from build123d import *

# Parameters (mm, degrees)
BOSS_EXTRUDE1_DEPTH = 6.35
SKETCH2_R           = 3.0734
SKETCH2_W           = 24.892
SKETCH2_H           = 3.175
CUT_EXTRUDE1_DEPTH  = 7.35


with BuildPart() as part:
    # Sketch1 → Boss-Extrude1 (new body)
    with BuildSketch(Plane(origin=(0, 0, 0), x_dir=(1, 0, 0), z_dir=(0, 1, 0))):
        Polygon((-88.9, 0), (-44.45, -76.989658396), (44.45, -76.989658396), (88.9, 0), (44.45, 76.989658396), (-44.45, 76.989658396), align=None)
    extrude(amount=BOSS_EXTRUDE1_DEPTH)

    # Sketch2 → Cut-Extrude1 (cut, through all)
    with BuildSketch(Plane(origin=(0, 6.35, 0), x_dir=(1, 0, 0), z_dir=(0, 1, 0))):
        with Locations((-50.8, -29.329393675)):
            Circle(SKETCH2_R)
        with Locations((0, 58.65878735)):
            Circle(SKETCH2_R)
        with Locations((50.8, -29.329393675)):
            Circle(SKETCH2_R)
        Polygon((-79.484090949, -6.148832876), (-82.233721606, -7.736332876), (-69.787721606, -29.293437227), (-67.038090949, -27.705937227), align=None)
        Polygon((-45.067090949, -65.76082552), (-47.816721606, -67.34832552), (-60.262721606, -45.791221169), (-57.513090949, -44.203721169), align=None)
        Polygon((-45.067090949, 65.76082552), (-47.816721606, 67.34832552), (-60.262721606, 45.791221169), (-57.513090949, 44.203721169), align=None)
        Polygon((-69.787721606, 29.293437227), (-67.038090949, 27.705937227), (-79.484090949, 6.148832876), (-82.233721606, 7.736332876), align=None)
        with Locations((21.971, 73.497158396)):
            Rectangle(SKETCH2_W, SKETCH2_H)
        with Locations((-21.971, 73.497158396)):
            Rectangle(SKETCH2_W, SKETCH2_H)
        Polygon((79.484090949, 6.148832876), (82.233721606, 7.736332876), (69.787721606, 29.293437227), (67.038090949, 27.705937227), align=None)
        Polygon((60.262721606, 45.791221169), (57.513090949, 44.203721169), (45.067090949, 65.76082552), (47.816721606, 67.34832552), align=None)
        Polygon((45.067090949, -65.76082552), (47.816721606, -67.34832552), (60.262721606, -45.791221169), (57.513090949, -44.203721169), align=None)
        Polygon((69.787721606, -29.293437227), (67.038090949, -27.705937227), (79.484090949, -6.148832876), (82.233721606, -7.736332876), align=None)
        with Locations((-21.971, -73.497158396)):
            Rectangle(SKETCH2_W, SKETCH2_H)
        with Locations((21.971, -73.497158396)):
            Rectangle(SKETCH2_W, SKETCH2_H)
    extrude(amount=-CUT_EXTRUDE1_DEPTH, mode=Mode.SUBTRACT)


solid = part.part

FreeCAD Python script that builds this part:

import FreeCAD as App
import Part
import Sketcher

V = App.Vector
Q = App.Units.Quantity

doc = App.newDocument("Part")
body = doc.addObject("PartDesign::Body", "Body")

# Sketch on XZ plane
sketch1 = body.newObject("Sketcher::SketchObject", "Sketch")
sketch1.AttachmentSupport = (doc.getObject("XZ_Plane"), [""])
sketch1.MapMode = "FlatFace"
sketch1.addGeometry(Part.LineSegment(V(-89, 0, 0), V(-44, 77, 0)), False)
sketch1.addGeometry(Part.LineSegment(V(-44, 77, 0), V(44, 77, 0)), False)
sketch1.addGeometry(Part.LineSegment(V(44, 77, 0), V(89, 0, 0)), False)
sketch1.addGeometry(Part.LineSegment(V(89, 0, 0), V(44, -77, 0)), False)
sketch1.addGeometry(Part.LineSegment(V(44, -77, 0), V(-44, -77, 0)), False)
sketch1.addGeometry(Part.LineSegment(V(-44, -77, 0), V(-89, 0, 0)), False)
sketch1.addConstraint(Sketcher.Constraint("Coincident", 0, 2, 1, 1))
sketch1.addConstraint(Sketcher.Constraint("Coincident", 1, 2, 2, 1))
sketch1.addConstraint(Sketcher.Constraint("Coincident", 2, 2, 3, 1))
sketch1.addConstraint(Sketcher.Constraint("Coincident", 3, 2, 4, 1))
sketch1.addConstraint(Sketcher.Constraint("Coincident", 4, 2, 5, 1))
sketch1.addConstraint(Sketcher.Constraint("Coincident", 5, 2, 0, 1))
sketch1.addConstraint(Sketcher.Constraint("Horizontal", 1))
sketch1.addConstraint(Sketcher.Constraint("Horizontal", 4))
sketch1.addConstraint(Sketcher.Constraint("Symmetric", 0, 2, 3, 2, -1, 1))
sketch1.addConstraint(Sketcher.Constraint("Symmetric", 2, 2, 5, 2, -1, 1))
sketch1.addConstraint(Sketcher.Constraint("PointOnObject", 2, 2, -1))
sketch1.addConstraint(Sketcher.Constraint("Parallel", 2, 5))
sketch1.addConstraint(Sketcher.Constraint("Vertical", 1, 2, 3, 2))
sketch1.addConstraint(Sketcher.Constraint("DistanceX", 1, 1, 1, 2, Q("3.5 in")))
sketch1.addConstraint(Sketcher.Constraint("Angle", 0, Q("60 deg")))
sketch1.addConstraint(Sketcher.Constraint("DistanceX", 5, 2, 2, 2, Q("7 in")))
pad1 = body.newObject("PartDesign::Pad", "Pad")
pad1.Profile = sketch1
pad1.Length = Q("0.25 in")
pad1.Reversed = True

# Sketch on XZ plane
sketch2 = body.newObject("Sketcher::SketchObject", "Sketch001")
sketch2.AttachmentSupport = (doc.getObject("XZ_Plane"), [""])
sketch2.MapMode = "FlatFace"
sketch2.AttachmentOffset = App.Placement(V(0, 0, -0.25 * 25.4), App.Rotation())
sketch2.addGeometry(Part.Circle(V(-50.8, 29.3, 0), V(0, 0, 1), 3.1), False)
sketch2.addGeometry(Part.Circle(V(0, -58.7, 0), V(0, 0, 1), 3.1), False)
sketch2.addGeometry(Part.Circle(V(50.8, 29.3, 0), V(0, 0, 1), 3.1), False)
sketch2.addGeometry(Part.LineSegment(V(-79.5, 6.1, 0), V(-82.2, 7.7, 0)), False)
sketch2.addGeometry(Part.LineSegment(V(-82.2, 7.7, 0), V(-69.8, 29.3, 0)), False)
sketch2.addGeometry(Part.LineSegment(V(-69.8, 29.3, 0), V(-67, 27.7, 0)), False)
sketch2.addGeometry(Part.LineSegment(V(-67, 27.7, 0), V(-79.5, 6.1, 0)), False)
sketch2.addGeometry(Part.LineSegment(V(-47.8, 67.3, 0), V(-45.1, 65.8, 0)), False)
sketch2.addGeometry(Part.LineSegment(V(-45.1, 65.8, 0), V(-57.5, 44.2, 0)), False)
sketch2.addGeometry(Part.LineSegment(V(-57.5, 44.2, 0), V(-60.3, 45.8, 0)), False)
sketch2.addGeometry(Part.LineSegment(V(-60.3, 45.8, 0), V(-47.8, 67.3, 0)), False)
sketch2.addGeometry(Part.LineSegment(V(-45.1, -65.8, 0), V(-47.8, -67.3, 0)), False)
sketch2.addGeometry(Part.LineSegment(V(-47.8, -67.3, 0), V(-60.3, -45.8, 0)), False)
sketch2.addGeometry(Part.LineSegment(V(-60.3, -45.8, 0), V(-57.5, -44.2, 0)), False)
sketch2.addGeometry(Part.LineSegment(V(-57.5, -44.2, 0), V(-45.1, -65.8, 0)), False)
sketch2.addGeometry(Part.LineSegment(V(-67, -27.7, 0), V(-69.8, -29.3, 0)), False)
sketch2.addGeometry(Part.LineSegment(V(-69.8, -29.3, 0), V(-82.2, -7.7, 0)), False)
sketch2.addGeometry(Part.LineSegment(V(-82.2, -7.7, 0), V(-79.5, -6.1, 0)), False)
sketch2.addGeometry(Part.LineSegment(V(-79.5, -6.1, 0), V(-67, -27.7, 0)), False)
sketch2.addGeometry(Part.LineSegment(V(9.5, -75.1, 0), V(9.5, -71.9, 0)), False)
sketch2.addGeometry(Part.LineSegment(V(9.5, -71.9, 0), V(34.4, -71.9, 0)), False)
sketch2.addGeometry(Part.LineSegment(V(34.4, -71.9, 0), V(34.4, -75.1, 0)), False)
sketch2.addGeometry(Part.LineSegment(V(34.4, -75.1, 0), V(9.5, -75.1, 0)), False)
sketch2.addGeometry(Part.LineSegment(V(-34.4, -75.1, 0), V(-34.4, -71.9, 0)), False)
sketch2.addGeometry(Part.LineSegment(V(-34.4, -71.9, 0), V(-9.5, -71.9, 0)), False)
sketch2.addGeometry(Part.LineSegment(V(-9.5, -71.9, 0), V(-9.5, -75.1, 0)), False)
sketch2.addGeometry(Part.LineSegment(V(-9.5, -75.1, 0), V(-34.4, -75.1, 0)), False)
sketch2.addGeometry(Part.LineSegment(V(79.5, -6.1, 0), V(82.2, -7.7, 0)), False)
sketch2.addGeometry(Part.LineSegment(V(82.2, -7.7, 0), V(69.8, -29.3, 0)), False)
sketch2.addGeometry(Part.LineSegment(V(69.8, -29.3, 0), V(67, -27.7, 0)), False)
sketch2.addGeometry(Part.LineSegment(V(67, -27.7, 0), V(79.5, -6.1, 0)), False)
sketch2.addGeometry(Part.LineSegment(V(57.5, -44.2, 0), V(60.3, -45.8, 0)), False)
sketch2.addGeometry(Part.LineSegment(V(60.3, -45.8, 0), V(47.8, -67.3, 0)), False)
sketch2.addGeometry(Part.LineSegment(V(47.8, -67.3, 0), V(45.1, -65.8, 0)), False)
sketch2.addGeometry(Part.LineSegment(V(45.1, -65.8, 0), V(57.5, -44.2, 0)), False)
sketch2.addGeometry(Part.LineSegment(V(45.1, 65.8, 0), V(47.8, 67.3, 0)), False)
sketch2.addGeometry(Part.LineSegment(V(47.8, 67.3, 0), V(60.3, 45.8, 0)), False)
sketch2.addGeometry(Part.LineSegment(V(60.3, 45.8, 0), V(57.5, 44.2, 0)), False)
sketch2.addGeometry(Part.LineSegment(V(57.5, 44.2, 0), V(45.1, 65.8, 0)), False)
sketch2.addGeometry(Part.LineSegment(V(67, 27.7, 0), V(69.8, 29.3, 0)), False)
sketch2.addGeometry(Part.LineSegment(V(69.8, 29.3, 0), V(82.2, 7.7, 0)), False)
sketch2.addGeometry(Part.LineSegment(V(82.2, 7.7, 0), V(79.5, 6.1, 0)), False)
sketch2.addGeometry(Part.LineSegment(V(79.5, 6.1, 0), V(67, 27.7, 0)), False)
sketch2.addGeometry(Part.LineSegment(V(-34.4, 71.9, 0), V(-34.4, 75.1, 0)), False)
sketch2.addGeometry(Part.LineSegment(V(-34.4, 75.1, 0), V(-9.5, 75.1, 0)), False)
sketch2.addGeometry(Part.LineSegment(V(-9.5, 75.1, 0), V(-9.5, 71.9, 0)), False)
sketch2.addGeometry(Part.LineSegment(V(-9.5, 71.9, 0), V(-34.4, 71.9, 0)), False)
sketch2.addGeometry(Part.LineSegment(V(9.5, 71.9, 0), V(9.5, 75.1, 0)), False)
sketch2.addGeometry(Part.LineSegment(V(9.5, 75.1, 0), V(34.4, 75.1, 0)), False)
sketch2.addGeometry(Part.LineSegment(V(34.4, 75.1, 0), V(34.4, 71.9, 0)), False)
sketch2.addGeometry(Part.LineSegment(V(34.4, 71.9, 0), V(9.5, 71.9, 0)), False)
sketch2.addConstraint(Sketcher.Constraint("Coincident", 3, 2, 4, 1))
sketch2.addConstraint(Sketcher.Constraint("Coincident", 4, 2, 5, 1))
sketch2.addConstraint(Sketcher.Constraint("Coincident", 5, 2, 6, 1))
sketch2.addConstraint(Sketcher.Constraint("Coincident", 6, 2, 3, 1))
sketch2.addConstraint(Sketcher.Constraint("Coincident", 7, 2, 8, 1))
sketch2.addConstraint(Sketcher.Constraint("Coincident", 8, 2, 9, 1))
sketch2.addConstraint(Sketcher.Constraint("Coincident", 9, 2, 10, 1))
sketch2.addConstraint(Sketcher.Constraint("Coincident", 10, 2, 7, 1))
sketch2.addConstraint(Sketcher.Constraint("Coincident", 11, 2, 12, 1))
sketch2.addConstraint(Sketcher.Constraint("Coincident", 12, 2, 13, 1))
sketch2.addConstraint(Sketcher.Constraint("Coincident", 13, 2, 14, 1))
sketch2.addConstraint(Sketcher.Constraint("Coincident", 14, 2, 11, 1))
sketch2.addConstraint(Sketcher.Constraint("Coincident", 15, 2, 16, 1))
sketch2.addConstraint(Sketcher.Constraint("Coincident", 16, 2, 17, 1))
sketch2.addConstraint(Sketcher.Constraint("Coincident", 17, 2, 18, 1))
sketch2.addConstraint(Sketcher.Constraint("Coincident", 18, 2, 15, 1))
sketch2.addConstraint(Sketcher.Constraint("Coincident", 19, 2, 20, 1))
sketch2.addConstraint(Sketcher.Constraint("Coincident", 20, 2, 21, 1))
sketch2.addConstraint(Sketcher.Constraint("Coincident", 21, 2, 22, 1))
sketch2.addConstraint(Sketcher.Constraint("Coincident", 22, 2, 19, 1))
sketch2.addConstraint(Sketcher.Constraint("Coincident", 23, 2, 24, 1))
sketch2.addConstraint(Sketcher.Constraint("Coincident", 24, 2, 25, 1))
sketch2.addConstraint(Sketcher.Constraint("Coincident", 25, 2, 26, 1))
sketch2.addConstraint(Sketcher.Constraint("Coincident", 26, 2, 23, 1))
sketch2.addConstraint(Sketcher.Constraint("Coincident", 27, 2, 28, 1))
sketch2.addConstraint(Sketcher.Constraint("Coincident", 28, 2, 29, 1))
sketch2.addConstraint(Sketcher.Constraint("Coincident", 29, 2, 30, 1))
sketch2.addConstraint(Sketcher.Constraint("Coincident", 30, 2, 27, 1))
sketch2.addConstraint(Sketcher.Constraint("Coincident", 31, 2, 32, 1))
sketch2.addConstraint(Sketcher.Constraint("Coincident", 32, 2, 33, 1))
sketch2.addConstraint(Sketcher.Constraint("Coincident", 33, 2, 34, 1))
sketch2.addConstraint(Sketcher.Constraint("Coincident", 34, 2, 31, 1))
sketch2.addConstraint(Sketcher.Constraint("Coincident", 35, 2, 36, 1))
sketch2.addConstraint(Sketcher.Constraint("Coincident", 36, 2, 37, 1))
sketch2.addConstraint(Sketcher.Constraint("Coincident", 37, 2, 38, 1))
sketch2.addConstraint(Sketcher.Constraint("Coincident", 38, 2, 35, 1))
sketch2.addConstraint(Sketcher.Constraint("Coincident", 39, 2, 40, 1))
sketch2.addConstraint(Sketcher.Constraint("Coincident", 40, 2, 41, 1))
sketch2.addConstraint(Sketcher.Constraint("Coincident", 41, 2, 42, 1))
sketch2.addConstraint(Sketcher.Constraint("Coincident", 42, 2, 39, 1))
sketch2.addConstraint(Sketcher.Constraint("Coincident", 43, 2, 44, 1))
sketch2.addConstraint(Sketcher.Constraint("Coincident", 44, 2, 45, 1))
sketch2.addConstraint(Sketcher.Constraint("Coincident", 45, 2, 46, 1))
sketch2.addConstraint(Sketcher.Constraint("Coincident", 46, 2, 43, 1))
sketch2.addConstraint(Sketcher.Constraint("Coincident", 47, 2, 48, 1))
sketch2.addConstraint(Sketcher.Constraint("Coincident", 48, 2, 49, 1))
sketch2.addConstraint(Sketcher.Constraint("Coincident", 49, 2, 50, 1))
sketch2.addConstraint(Sketcher.Constraint("Coincident", 50, 2, 47, 1))
sketch2.addConstraint(Sketcher.Constraint("Vertical", 19))
sketch2.addConstraint(Sketcher.Constraint("Horizontal", 20))
sketch2.addConstraint(Sketcher.Constraint("Vertical", 21))
sketch2.addConstraint(Sketcher.Constraint("Horizontal", 22))
sketch2.addConstraint(Sketcher.Constraint("Vertical", 23))
sketch2.addConstraint(Sketcher.Constraint("Horizontal", 24))
sketch2.addConstraint(Sketcher.Constraint("Vertical", 25))
sketch2.addConstraint(Sketcher.Constraint("Horizontal", 26))
sketch2.addConstraint(Sketcher.Constraint("Vertical", 43))
sketch2.addConstraint(Sketcher.Constraint("Horizontal", 44))
sketch2.addConstraint(Sketcher.Constraint("Vertical", 45))
sketch2.addConstraint(Sketcher.Constraint("Horizontal", 46))
sketch2.addConstraint(Sketcher.Constraint("Vertical", 47))
sketch2.addConstraint(Sketcher.Constraint("Horizontal", 48))
sketch2.addConstraint(Sketcher.Constraint("Vertical", 49))
sketch2.addConstraint(Sketcher.Constraint("Horizontal", 50))
sketch2.addConstraint(Sketcher.Constraint("Equal", 0, 1))
sketch2.addConstraint(Sketcher.Constraint("Equal", 1, 2))
sketch2.addConstraint(Sketcher.Constraint("Symmetric", 3, 2, 27, 2, -1, 1))
sketch2.addConstraint(Sketcher.Constraint("Symmetric", 4, 2, 28, 2, -1, 1))
sketch2.addConstraint(Sketcher.Constraint("Symmetric", 5, 2, 29, 2, -1, 1))
sketch2.addConstraint(Sketcher.Constraint("Symmetric", 6, 2, 30, 2, -1, 1))
sketch2.addConstraint(Sketcher.Constraint("Symmetric", 9, 2, 31, 2, -1, 1))
sketch2.addConstraint(Sketcher.Constraint("Symmetric", 10, 2, 32, 2, -1, 1))
sketch2.addConstraint(Sketcher.Constraint("Symmetric", 7, 2, 33, 2, -1, 1))
sketch2.addConstraint(Sketcher.Constraint("Symmetric", 8, 2, 34, 2, -1, 1))
sketch2.addConstraint(Sketcher.Constraint("Symmetric", 11, 2, 35, 2, -1, 1))
sketch2.addConstraint(Sketcher.Constraint("Symmetric", 12, 2, 36, 2, -1, 1))
sketch2.addConstraint(Sketcher.Constraint("Symmetric", 13, 2, 37, 2, -1, 1))
sketch2.addConstraint(Sketcher.Constraint("Symmetric", 14, 2, 38, 2, -1, 1))
sketch2.addConstraint(Sketcher.Constraint("Symmetric", 15, 2, 39, 2, -1, 1))
sketch2.addConstraint(Sketcher.Constraint("Symmetric", 16, 2, 40, 2, -1, 1))
sketch2.addConstraint(Sketcher.Constraint("Symmetric", 17, 2, 41, 2, -1, 1))
sketch2.addConstraint(Sketcher.Constraint("Symmetric", 18, 2, 42, 2, -1, 1))
sketch2.addConstraint(Sketcher.Constraint("Symmetric", 21, 2, 43, 2, -1, 1))
sketch2.addConstraint(Sketcher.Constraint("Symmetric", 19, 2, 45, 2, -1, 1))
sketch2.addConstraint(Sketcher.Constraint("Symmetric", 25, 2, 47, 2, -1, 1))
sketch2.addConstraint(Sketcher.Constraint("Symmetric", 23, 2, 49, 2, -1, 1))
sketch2.addConstraint(Sketcher.Constraint("Symmetric", 0, 3, 2, 3, -2))
sketch2.addConstraint(Sketcher.Constraint("Symmetric", 20, 2, 23, 2, -2))
sketch2.addConstraint(Sketcher.Constraint("Symmetric", 22, 2, 25, 2, -2))
sketch2.addConstraint(Sketcher.Constraint("Symmetric", 16, 2, 27, 2, -2))
sketch2.addConstraint(Sketcher.Constraint("Symmetric", 15, 2, 28, 2, -2))
sketch2.addConstraint(Sketcher.Constraint("Symmetric", 18, 2, 29, 2, -2))
sketch2.addConstraint(Sketcher.Constraint("Symmetric", 17, 2, 30, 2, -2))
sketch2.addConstraint(Sketcher.Constraint("Symmetric", 12, 2, 31, 2, -2))
sketch2.addConstraint(Sketcher.Constraint("Symmetric", 11, 2, 32, 2, -2))
sketch2.addConstraint(Sketcher.Constraint("Symmetric", 14, 2, 33, 2, -2))
sketch2.addConstraint(Sketcher.Constraint("Symmetric", 13, 2, 34, 2, -2))
sketch2.addConstraint(Sketcher.Constraint("PointOnObject", 1, 3, -2))
sketch2.addConstraint(Sketcher.Constraint("Perpendicular", 3, 4))
sketch2.addConstraint(Sketcher.Constraint("Perpendicular", 4, 5))
sketch2.addConstraint(Sketcher.Constraint("Perpendicular", 5, 6))
sketch2.addConstraint(Sketcher.Constraint("Perpendicular", 6, 7))
sketch2.addConstraint(Sketcher.Constraint("Perpendicular", 7, 8))
sketch2.addConstraint(Sketcher.Constraint("Perpendicular", 8, 9))
sketch2.addConstraint(Sketcher.Constraint("Perpendicular", 9, 10))
sketch2.addConstraint(Sketcher.Constraint("Equal", 5, 7))
sketch2.addConstraint(Sketcher.Constraint("Equal", 6, 8))
sketch2.addConstraint(Sketcher.Constraint("Diameter", 0, Q("0.242 in")))
sketch2.addConstraint(Sketcher.Constraint("DistanceX", 0, 3, -1, 1, Q("2 in")))
sketch2.addConstraint(Sketcher.Constraint("Angle", 3, Q("150 deg")))
sketch2.addConstraint(Sketcher.Constraint("DistanceX", 20, 1, 20, 2, Q("0.98 in")))
sketch2.addConstraint(Sketcher.Constraint("Distance", 4, Q("0.98 in")))
sketch2.addConstraint(Sketcher.Constraint("DistanceY", 19, 1, 19, 2, Q("0.125 in")))
sketch2.addConstraint(Sketcher.Constraint("DistanceX", 24, 2, 19, 2, Q("0.75 in")))
sketch2.addConstraint(Sketcher.Constraint("Distance", 3, Q("0.125 in")))
sketch2.addConstraint(Sketcher.Constraint("DistanceX", 5, 2, 7, 2, Q("0.865 in")))
sketch2.addConstraint(Sketcher.Constraint("DistanceX", 3, 2, -1, 1, 82.233722))
sketch2.addConstraint(Sketcher.Constraint("DistanceY", -1, 1, 8, 2, 44.203721))
sketch2.addConstraint(Sketcher.Constraint("DistanceY", 19, 2, -1, 1, 71.909658))
sketch2.addConstraint(Sketcher.Constraint("DistanceY", 1, 3, 0, 3, 87.988181))
sketch2.addConstraint(Sketcher.Constraint("DistanceY", 3, 2, 0, 3, 21.593061))
sketch2.addConstraint(Sketcher.Constraint("DistanceY", 0, 3, 7, 2, 36.431432))
pocket1 = body.newObject("PartDesign::Pocket", "Pocket")
pocket1.Profile = sketch2
pocket1.Type = "ThroughAll"
pocket1.Reversed = True

doc.recompute()
